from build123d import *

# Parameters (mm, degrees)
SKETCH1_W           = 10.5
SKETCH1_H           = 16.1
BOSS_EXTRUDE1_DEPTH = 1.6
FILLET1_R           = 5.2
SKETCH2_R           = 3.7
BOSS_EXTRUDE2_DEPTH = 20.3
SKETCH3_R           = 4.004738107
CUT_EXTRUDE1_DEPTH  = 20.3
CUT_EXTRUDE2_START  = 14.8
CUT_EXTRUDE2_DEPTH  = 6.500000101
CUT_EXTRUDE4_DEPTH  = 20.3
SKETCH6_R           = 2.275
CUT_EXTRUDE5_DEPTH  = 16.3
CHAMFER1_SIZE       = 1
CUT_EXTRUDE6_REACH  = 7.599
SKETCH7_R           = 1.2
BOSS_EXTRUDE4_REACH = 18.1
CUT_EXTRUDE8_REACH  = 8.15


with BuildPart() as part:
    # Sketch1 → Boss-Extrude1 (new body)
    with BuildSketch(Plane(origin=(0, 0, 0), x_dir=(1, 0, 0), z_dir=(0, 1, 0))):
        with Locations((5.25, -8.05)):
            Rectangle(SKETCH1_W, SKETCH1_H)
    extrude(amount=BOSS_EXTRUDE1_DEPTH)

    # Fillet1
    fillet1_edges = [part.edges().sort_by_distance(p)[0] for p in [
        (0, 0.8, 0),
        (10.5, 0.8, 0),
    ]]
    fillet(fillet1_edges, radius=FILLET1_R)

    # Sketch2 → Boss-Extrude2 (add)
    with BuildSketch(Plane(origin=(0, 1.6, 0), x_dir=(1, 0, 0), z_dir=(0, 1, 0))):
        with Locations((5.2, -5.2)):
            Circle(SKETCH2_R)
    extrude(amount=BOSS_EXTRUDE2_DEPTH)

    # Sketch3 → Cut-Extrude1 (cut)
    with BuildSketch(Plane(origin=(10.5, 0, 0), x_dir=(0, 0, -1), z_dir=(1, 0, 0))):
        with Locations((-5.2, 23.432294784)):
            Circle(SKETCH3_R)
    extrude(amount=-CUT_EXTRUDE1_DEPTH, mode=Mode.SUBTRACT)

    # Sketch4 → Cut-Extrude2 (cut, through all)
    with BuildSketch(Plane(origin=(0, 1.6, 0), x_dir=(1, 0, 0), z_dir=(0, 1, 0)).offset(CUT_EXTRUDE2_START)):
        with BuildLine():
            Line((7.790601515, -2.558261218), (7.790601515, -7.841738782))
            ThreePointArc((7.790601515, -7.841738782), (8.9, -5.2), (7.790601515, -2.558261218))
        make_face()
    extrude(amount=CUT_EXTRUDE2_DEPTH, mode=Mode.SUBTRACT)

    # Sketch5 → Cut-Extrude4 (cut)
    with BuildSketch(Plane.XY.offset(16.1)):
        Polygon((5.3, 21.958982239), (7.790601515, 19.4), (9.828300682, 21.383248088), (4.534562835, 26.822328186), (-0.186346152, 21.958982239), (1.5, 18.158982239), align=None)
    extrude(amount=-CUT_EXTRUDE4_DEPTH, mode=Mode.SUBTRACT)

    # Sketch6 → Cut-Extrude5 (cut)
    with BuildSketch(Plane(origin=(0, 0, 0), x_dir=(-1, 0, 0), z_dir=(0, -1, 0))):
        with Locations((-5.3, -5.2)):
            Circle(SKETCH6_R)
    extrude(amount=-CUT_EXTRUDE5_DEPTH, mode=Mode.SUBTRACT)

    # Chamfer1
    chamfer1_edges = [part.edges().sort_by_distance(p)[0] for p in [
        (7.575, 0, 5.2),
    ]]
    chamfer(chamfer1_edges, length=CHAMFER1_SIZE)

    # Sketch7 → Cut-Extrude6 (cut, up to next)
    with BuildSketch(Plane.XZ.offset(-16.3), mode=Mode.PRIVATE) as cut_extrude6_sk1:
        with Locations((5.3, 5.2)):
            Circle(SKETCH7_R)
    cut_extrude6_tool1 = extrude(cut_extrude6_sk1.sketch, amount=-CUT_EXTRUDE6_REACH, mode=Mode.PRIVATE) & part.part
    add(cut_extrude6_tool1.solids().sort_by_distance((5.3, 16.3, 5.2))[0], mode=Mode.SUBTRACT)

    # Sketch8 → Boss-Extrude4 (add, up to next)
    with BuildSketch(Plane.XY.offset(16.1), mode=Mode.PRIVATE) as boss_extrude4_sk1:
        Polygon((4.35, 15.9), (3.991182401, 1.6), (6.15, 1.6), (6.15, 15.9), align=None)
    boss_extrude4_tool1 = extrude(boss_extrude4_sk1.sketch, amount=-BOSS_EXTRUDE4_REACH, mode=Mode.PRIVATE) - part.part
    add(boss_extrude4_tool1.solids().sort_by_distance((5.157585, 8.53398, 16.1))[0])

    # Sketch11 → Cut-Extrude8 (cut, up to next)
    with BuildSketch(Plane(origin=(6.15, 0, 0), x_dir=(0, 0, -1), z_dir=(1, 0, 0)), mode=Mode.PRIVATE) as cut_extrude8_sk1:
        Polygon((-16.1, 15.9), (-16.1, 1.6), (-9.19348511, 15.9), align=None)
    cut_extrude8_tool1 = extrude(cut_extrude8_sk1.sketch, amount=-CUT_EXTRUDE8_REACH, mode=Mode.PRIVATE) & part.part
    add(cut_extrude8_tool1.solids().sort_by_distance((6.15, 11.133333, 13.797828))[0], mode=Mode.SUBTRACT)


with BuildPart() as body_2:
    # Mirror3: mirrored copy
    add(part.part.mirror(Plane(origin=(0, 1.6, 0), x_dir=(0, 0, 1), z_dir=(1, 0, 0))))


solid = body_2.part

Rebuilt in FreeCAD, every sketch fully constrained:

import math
import FreeCAD as App
import Part
import Sketcher
Q = App.Units.Quantity


def edges_at(feature, points):
    """Names of the edges that pass closest to the given points."""
    edges = feature.Shape.Edges
    near = lambda p: min(range(len(edges)), key=lambda i: edges[i].distToShape(Part.Vertex(*p))[0])
    return sorted({f"Edge{near(p) + 1}" for p in points})


def add_polygon(sketch, points):
    """Adds a closed chain of lines whose ends are joined by coincident constraints."""
    first, n = sketch.GeometryCount, len(points)
    for a, b in zip(points, points[1:] + points[:1]):
        sketch.addGeometry(Part.LineSegment(App.Vector(*a, 0), App.Vector(*b, 0)), False)
    for i in range(n):
        sketch.addConstraint(Sketcher.Constraint("Coincident", first + i, 2, first + (i + 1) % n, 1))

doc = App.newDocument("Part")
params = doc.addObject("Spreadsheet::Sheet", "Params")
for row, (alias, value) in enumerate([
    ("sketch1_width", "10.5 mm"),
    ("sketch1_height", "16.1 mm"),
    ("pad1_length", "1.6 mm"),
    ("fillet_radius", "5.2 mm"),
    ("sketch2_diameter", "7.4 mm"),
    ("pad2_length", "20.3 mm"),
    ("pocket1_length", "20.3 mm"),
    ("sketch4_radius", "3.7 mm"),
    ("pocket3_length", "20.3 mm"),
    ("sketch6_diameter", "4.55 mm"),
    ("pocket4_length", "16.3 mm"),
    ("chamfer_size", "1 mm"),
    ("sketch7_diameter", "2.4 mm"),
    ("sketch8_width", "1.8 mm"),
    ("sketch8_height", "14.3 mm"),
    ("sketch9_width", "14.3 mm"),
], start=1):
    params.set(f"A{row}", alias)
    params.set(f"B{row}", "=" + value)
    params.setAlias(f"B{row}", alias)

body = doc.addObject("PartDesign::Body", "Body")

sketch1 = body.newObject("Sketcher::SketchObject", "Sketch")
sketch1.AttachmentSupport = (doc.getObject("XZ_Plane"), [""])
sketch1.MapMode = "FlatFace"
add_polygon(sketch1, [(0, 0), (0, 16.1), (10.5, 16.1), (10.5, 0)])
sketch1.addConstraint([
    Sketcher.Constraint("Vertical", 0),
    Sketcher.Constraint("Horizontal", 1),
    Sketcher.Constraint("Vertical", 2),
    Sketcher.Constraint("Horizontal", 3),
    Sketcher.Constraint("Coincident", 3, 2, -1, 1),
    Sketcher.Constraint("DistanceX", 1, 1, 1, 2, 10.5),
    Sketcher.Constraint("DistanceY", 0, 1, 0, 2, 16.1),
])
sketch1.setExpression("Constraints[9]", "Params.sketch1_width")
sketch1.setExpression("Constraints[10]", "Params.sketch1_height")
pad1 = body.newObject("PartDesign::Pad", "Pad")
pad1.Profile = sketch1
pad1.setExpression("Length", "Params.pad1_length")
pad1.Reversed = True
doc.recompute()

fillet = body.newObject("PartDesign::Fillet", "Fillet")
fillet.Base = (pad1, edges_at(pad1, [(0, 0.8, 0), (10.5, 0.8, 0)]))
fillet.setExpression("Radius", "Params.fillet_radius")

sketch2 = body.newObject("Sketcher::SketchObject", "Sketch001")
sketch2.AttachmentSupport = (doc.getObject("XZ_Plane"), [""])
sketch2.MapMode = "FlatFace"
sketch2.AttachmentOffset = App.Placement(App.Vector(0, 0, -1.6), App.Rotation())
sketch2.addGeometry(Part.Circle(App.Vector(5.2, 5.2, 0), App.Vector(0, 0, 1), 3.7), False)
sketch2.addConstraint([
    Sketcher.Constraint("Diameter", 0, 7.4),
    Sketcher.Constraint("DistanceX", -1, 1, 0, 3, 5.2),
    Sketcher.Constraint("DistanceY", -1, 1, 0, 3, 5.2),
])
sketch2.setExpression("Constraints[0]", "Params.sketch2_diameter")
pad2 = body.newObject("PartDesign::Pad", "Pad001")
pad2.Profile = sketch2
pad2.setExpression("Length", "Params.pad2_length")
pad2.Reversed = True

sketch3 = body.newObject("Sketcher::SketchObject", "Sketch002")
sketch3.AttachmentSupport = (doc.getObject("YZ_Plane"), [""])
sketch3.MapMode = "FlatFace"
sketch3.AttachmentOffset = App.Placement(App.Vector(0, 0, 10.5), App.Rotation())
sketch3.addGeometry(Part.Circle(App.Vector(23.432295, 5.2, 0), App.Vector(0, 0, 1), 4.004738), False)
sketch3.addConstraint([
    Sketcher.Constraint("DistanceY", -1, 1, 0, 3, 5.2),
    Sketcher.Constraint("Diameter", 0, 8.009476),
    Sketcher.Constraint("DistanceX", -1, 1, 0, 3, 23.432295),
])
pocket1 = body.newObject("PartDesign::Pocket", "Pocket")
pocket1.Profile = sketch3
pocket1.setExpression("Length", "Params.pocket1_length")

sketch4 = body.newObject("Sketcher::SketchObject", "Sketch003")
sketch4.AttachmentSupport = (doc.getObject("XZ_Plane"), [""])
sketch4.MapMode = "FlatFace"
sketch4.AttachmentOffset = App.Placement(App.Vector(0, 0, -16.4), App.Rotation())
sketch4.addGeometry([
    Part.LineSegment(App.Vector(7.790602, 2.558261, 0), App.Vector(7.790602, 7.841739, 0)),
    Part.ArcOfCircle(Part.Circle(App.Vector(5.2, 5.2, 0), App.Vector(0, 0, 1), 3.7), math.radians(-45.559951), math.radians(45.559951)),
], False)
sketch4.addConstraint([
    Sketcher.Constraint("Coincident", 0, 1, 1, 1),
    Sketcher.Constraint("Coincident", 1, 2, 0, 2),
    Sketcher.Constraint("Vertical", 0),
    Sketcher.Constraint("Radius", 1, 3.7),
    Sketcher.Constraint("DistanceX", -1, 1, 1, 3, 5.2),
    Sketcher.Constraint("DistanceY", -1, 1, 1, 3, 5.2),
    Sketcher.Constraint("DistanceX", -1, 1, 0, 1, 7.790602),
])
sketch4.setExpression("Constraints[3]", "Params.sketch4_radius")
pocket2 = body.newObject("PartDesign::Pocket", "Pocket001")
pocket2.Profile = sketch4
pocket2.Type = "ThroughAll"

sketch5 = body.newObject("Sketcher::SketchObject", "Sketch004")
sketch5.AttachmentSupport = (doc.getObject("XY_Plane"), [""])
sketch5.MapMode = "FlatFace"
sketch5.AttachmentOffset = App.Placement(App.Vector(0, 0, 16.1), App.Rotation())
add_polygon(sketch5, [(5.3, 21.958982), (7.790602, 19.4), (9.828301, 21.383248), (4.534563, 26.822328), (-0.186346, 21.958982), (1.5, 18.158982)])
sketch5.addConstraint([
    Sketcher.Constraint("Perpendicular", 0, 1),
    Sketcher.Constraint("Perpendicular", 1, 2),
    Sketcher.Constraint("Horizontal", 3, 2, 5, 2),
    Sketcher.Constraint("Angle", 5, Q("45 deg")),
    Sketcher.Constraint("DistanceY", -1, 1, 0, 2, 19.4),
    Sketcher.Constraint("DistanceX", -1, 1, 4, 2, 1.5),
    Sketcher.Constraint("DistanceX", -1, 1, 5, 2, 5.3),
    Sketcher.Constraint("Distance", 1, 2.8435),
    Sketcher.Constraint("DistanceX", -1, 1, 0, 2, 7.790602),
    Sketcher.Constraint("DistanceX", -1, 1, 1, 2, 9.828301),
    Sketcher.Constraint("Distance", 3, 6.77784),
    Sketcher.Constraint("DistanceY", -1, 1, 2, 2, 26.822328),
])
pocket3 = body.newObject("PartDesign::Pocket", "Pocket002")
pocket3.Profile = sketch5
pocket3.setExpression("Length", "Params.pocket3_length")

sketch6 = body.newObject("Sketcher::SketchObject", "Sketch005")
sketch6.AttachmentSupport = (doc.getObject("XZ_Plane"), [""])
sketch6.MapMode = "FlatFace"
sketch6.addGeometry(Part.Circle(App.Vector(5.3, 5.2, 0), App.Vector(0, 0, 1), 2.275), False)
sketch6.addConstraint([
    Sketcher.Constraint("Diameter", 0, 4.55),
    Sketcher.Constraint("DistanceX", -1, 1, 0, 3, 5.3),
    Sketcher.Constraint("DistanceY", -1, 1, 0, 3, 5.2),
])
sketch6.setExpression("Constraints[0]", "Params.sketch6_diameter")
pocket4 = body.newObject("PartDesign::Pocket", "Pocket003")
pocket4.Profile = sketch6
pocket4.setExpression("Length", "Params.pocket4_length")
doc.recompute()

chamfer = body.newObject("PartDesign::Chamfer", "Chamfer")
chamfer.Base = (pocket4, edges_at(pocket4, [(7.575, 0, 5.2)]))
chamfer.setExpression("Size", "Params.chamfer_size")

sketch7 = body.newObject("Sketcher::SketchObject", "Sketch006")
sketch7.AttachmentSupport = (doc.getObject("XZ_Plane"), [""])
sketch7.MapMode = "FlatFace"
sketch7.AttachmentOffset = App.Placement(App.Vector(0, 0, -16.3), App.Rotation())
sketch7.addGeometry(Part.Circle(App.Vector(5.3, 5.2, 0), App.Vector(0, 0, 1), 1.2), False)
sketch7.addConstraint([
    Sketcher.Constraint("Diameter", 0, 2.4),
    Sketcher.Constraint("DistanceX", -1, 1, 0, 3, 5.3),
    Sketcher.Constraint("DistanceY", -1, 1, 0, 3, 5.2),
])
sketch7.setExpression("Constraints[0]", "Params.sketch7_diameter")
pocket5 = body.newObject("PartDesign::Pocket", "Pocket004")
pocket5.Profile = sketch7
pocket5.Type = "UpToFirst"

sketch8 = body.newObject("Sketcher::SketchObject", "Sketch007")
sketch8.AttachmentSupport = (doc.getObject("XY_Plane"), [""])
sketch8.MapMode = "FlatFace"
sketch8.AttachmentOffset = App.Placement(App.Vector(0, 0, 16.1), App.Rotation())
add_polygon(sketch8, [(4.35, 15.9), (3.991182, 1.6), (6.15, 1.6), (6.15, 15.9)])
sketch8.addConstraint([
    Sketcher.Constraint("Horizontal", 1),
    Sketcher.Constraint("Vertical", 2),
    Sketcher.Constraint("Horizontal", 3),
    Sketcher.Constraint("DistanceX", 3, 2, 3, 1, 1.8),
    Sketcher.Constraint("DistanceY", 2, 1, 2, 2, 14.3),
    Sketcher.Constraint("DistanceY", -1, 1, 0, 2, 1.6),
    Sketcher.Constraint("DistanceX", -1, 1, 1, 2, 6.15),
    Sketcher.Constraint("Distance", 0, 14.304501),
])
sketch8.setExpression("Constraints[7]", "Params.sketch8_width")
sketch8.setExpression("Constraints[8]", "Params.sketch8_height")
pad3 = body.newObject("PartDesign::Pad", "Pad002")
pad3.Profile = sketch8
pad3.Type = "UpToFirst"
pad3.Reversed = True

sketch9 = body.newObject("Sketcher::SketchObject", "Sketch008")
sketch9.AttachmentSupport = (doc.getObject("YZ_Plane"), [""])
sketch9.MapMode = "FlatFace"
sketch9.AttachmentOffset = App.Placement(App.Vector(0, 0, 6.15), App.Rotation())
add_polygon(sketch9, [(15.9, 16.1), (1.6, 16.1), (15.9, 9.193485)])
sketch9.addConstraint([
    Sketcher.Constraint("Horizontal", 0),
    Sketcher.Constraint("Vertical", 2),
    Sketcher.Constraint("DistanceX", 0, 2, 0, 1, 14.3),
    Sketcher.Constraint("DistanceX", -1, 1, 0, 2, 1.6),
    Sketcher.Constraint("DistanceY", -1, 1, 0, 2, 16.1),
    Sketcher.Constraint("Distance", 1, 15.88049),
])
sketch9.setExpression("Constraints[5]", "Params.sketch9_width")
pocket6 = body.newObject("PartDesign::Pocket", "Pocket005")
pocket6.Profile = sketch9
pocket6.Type = "UpToFirst"
body2 = doc.addObject("PartDesign::Body", "Body001")
doc.recompute()

mirroring = doc.addObject("Part::Mirroring", "Mirroring")
mirroring.Source = body
mirroring.Base = App.Vector(0, 1.6, 0)
mirroring.Normal = App.Vector(1, 0, 0)
body2.BaseFeature = mirroring
doc.recompute()
body.Visibility = False
mirroring.Visibility = False

doc.recompute()
